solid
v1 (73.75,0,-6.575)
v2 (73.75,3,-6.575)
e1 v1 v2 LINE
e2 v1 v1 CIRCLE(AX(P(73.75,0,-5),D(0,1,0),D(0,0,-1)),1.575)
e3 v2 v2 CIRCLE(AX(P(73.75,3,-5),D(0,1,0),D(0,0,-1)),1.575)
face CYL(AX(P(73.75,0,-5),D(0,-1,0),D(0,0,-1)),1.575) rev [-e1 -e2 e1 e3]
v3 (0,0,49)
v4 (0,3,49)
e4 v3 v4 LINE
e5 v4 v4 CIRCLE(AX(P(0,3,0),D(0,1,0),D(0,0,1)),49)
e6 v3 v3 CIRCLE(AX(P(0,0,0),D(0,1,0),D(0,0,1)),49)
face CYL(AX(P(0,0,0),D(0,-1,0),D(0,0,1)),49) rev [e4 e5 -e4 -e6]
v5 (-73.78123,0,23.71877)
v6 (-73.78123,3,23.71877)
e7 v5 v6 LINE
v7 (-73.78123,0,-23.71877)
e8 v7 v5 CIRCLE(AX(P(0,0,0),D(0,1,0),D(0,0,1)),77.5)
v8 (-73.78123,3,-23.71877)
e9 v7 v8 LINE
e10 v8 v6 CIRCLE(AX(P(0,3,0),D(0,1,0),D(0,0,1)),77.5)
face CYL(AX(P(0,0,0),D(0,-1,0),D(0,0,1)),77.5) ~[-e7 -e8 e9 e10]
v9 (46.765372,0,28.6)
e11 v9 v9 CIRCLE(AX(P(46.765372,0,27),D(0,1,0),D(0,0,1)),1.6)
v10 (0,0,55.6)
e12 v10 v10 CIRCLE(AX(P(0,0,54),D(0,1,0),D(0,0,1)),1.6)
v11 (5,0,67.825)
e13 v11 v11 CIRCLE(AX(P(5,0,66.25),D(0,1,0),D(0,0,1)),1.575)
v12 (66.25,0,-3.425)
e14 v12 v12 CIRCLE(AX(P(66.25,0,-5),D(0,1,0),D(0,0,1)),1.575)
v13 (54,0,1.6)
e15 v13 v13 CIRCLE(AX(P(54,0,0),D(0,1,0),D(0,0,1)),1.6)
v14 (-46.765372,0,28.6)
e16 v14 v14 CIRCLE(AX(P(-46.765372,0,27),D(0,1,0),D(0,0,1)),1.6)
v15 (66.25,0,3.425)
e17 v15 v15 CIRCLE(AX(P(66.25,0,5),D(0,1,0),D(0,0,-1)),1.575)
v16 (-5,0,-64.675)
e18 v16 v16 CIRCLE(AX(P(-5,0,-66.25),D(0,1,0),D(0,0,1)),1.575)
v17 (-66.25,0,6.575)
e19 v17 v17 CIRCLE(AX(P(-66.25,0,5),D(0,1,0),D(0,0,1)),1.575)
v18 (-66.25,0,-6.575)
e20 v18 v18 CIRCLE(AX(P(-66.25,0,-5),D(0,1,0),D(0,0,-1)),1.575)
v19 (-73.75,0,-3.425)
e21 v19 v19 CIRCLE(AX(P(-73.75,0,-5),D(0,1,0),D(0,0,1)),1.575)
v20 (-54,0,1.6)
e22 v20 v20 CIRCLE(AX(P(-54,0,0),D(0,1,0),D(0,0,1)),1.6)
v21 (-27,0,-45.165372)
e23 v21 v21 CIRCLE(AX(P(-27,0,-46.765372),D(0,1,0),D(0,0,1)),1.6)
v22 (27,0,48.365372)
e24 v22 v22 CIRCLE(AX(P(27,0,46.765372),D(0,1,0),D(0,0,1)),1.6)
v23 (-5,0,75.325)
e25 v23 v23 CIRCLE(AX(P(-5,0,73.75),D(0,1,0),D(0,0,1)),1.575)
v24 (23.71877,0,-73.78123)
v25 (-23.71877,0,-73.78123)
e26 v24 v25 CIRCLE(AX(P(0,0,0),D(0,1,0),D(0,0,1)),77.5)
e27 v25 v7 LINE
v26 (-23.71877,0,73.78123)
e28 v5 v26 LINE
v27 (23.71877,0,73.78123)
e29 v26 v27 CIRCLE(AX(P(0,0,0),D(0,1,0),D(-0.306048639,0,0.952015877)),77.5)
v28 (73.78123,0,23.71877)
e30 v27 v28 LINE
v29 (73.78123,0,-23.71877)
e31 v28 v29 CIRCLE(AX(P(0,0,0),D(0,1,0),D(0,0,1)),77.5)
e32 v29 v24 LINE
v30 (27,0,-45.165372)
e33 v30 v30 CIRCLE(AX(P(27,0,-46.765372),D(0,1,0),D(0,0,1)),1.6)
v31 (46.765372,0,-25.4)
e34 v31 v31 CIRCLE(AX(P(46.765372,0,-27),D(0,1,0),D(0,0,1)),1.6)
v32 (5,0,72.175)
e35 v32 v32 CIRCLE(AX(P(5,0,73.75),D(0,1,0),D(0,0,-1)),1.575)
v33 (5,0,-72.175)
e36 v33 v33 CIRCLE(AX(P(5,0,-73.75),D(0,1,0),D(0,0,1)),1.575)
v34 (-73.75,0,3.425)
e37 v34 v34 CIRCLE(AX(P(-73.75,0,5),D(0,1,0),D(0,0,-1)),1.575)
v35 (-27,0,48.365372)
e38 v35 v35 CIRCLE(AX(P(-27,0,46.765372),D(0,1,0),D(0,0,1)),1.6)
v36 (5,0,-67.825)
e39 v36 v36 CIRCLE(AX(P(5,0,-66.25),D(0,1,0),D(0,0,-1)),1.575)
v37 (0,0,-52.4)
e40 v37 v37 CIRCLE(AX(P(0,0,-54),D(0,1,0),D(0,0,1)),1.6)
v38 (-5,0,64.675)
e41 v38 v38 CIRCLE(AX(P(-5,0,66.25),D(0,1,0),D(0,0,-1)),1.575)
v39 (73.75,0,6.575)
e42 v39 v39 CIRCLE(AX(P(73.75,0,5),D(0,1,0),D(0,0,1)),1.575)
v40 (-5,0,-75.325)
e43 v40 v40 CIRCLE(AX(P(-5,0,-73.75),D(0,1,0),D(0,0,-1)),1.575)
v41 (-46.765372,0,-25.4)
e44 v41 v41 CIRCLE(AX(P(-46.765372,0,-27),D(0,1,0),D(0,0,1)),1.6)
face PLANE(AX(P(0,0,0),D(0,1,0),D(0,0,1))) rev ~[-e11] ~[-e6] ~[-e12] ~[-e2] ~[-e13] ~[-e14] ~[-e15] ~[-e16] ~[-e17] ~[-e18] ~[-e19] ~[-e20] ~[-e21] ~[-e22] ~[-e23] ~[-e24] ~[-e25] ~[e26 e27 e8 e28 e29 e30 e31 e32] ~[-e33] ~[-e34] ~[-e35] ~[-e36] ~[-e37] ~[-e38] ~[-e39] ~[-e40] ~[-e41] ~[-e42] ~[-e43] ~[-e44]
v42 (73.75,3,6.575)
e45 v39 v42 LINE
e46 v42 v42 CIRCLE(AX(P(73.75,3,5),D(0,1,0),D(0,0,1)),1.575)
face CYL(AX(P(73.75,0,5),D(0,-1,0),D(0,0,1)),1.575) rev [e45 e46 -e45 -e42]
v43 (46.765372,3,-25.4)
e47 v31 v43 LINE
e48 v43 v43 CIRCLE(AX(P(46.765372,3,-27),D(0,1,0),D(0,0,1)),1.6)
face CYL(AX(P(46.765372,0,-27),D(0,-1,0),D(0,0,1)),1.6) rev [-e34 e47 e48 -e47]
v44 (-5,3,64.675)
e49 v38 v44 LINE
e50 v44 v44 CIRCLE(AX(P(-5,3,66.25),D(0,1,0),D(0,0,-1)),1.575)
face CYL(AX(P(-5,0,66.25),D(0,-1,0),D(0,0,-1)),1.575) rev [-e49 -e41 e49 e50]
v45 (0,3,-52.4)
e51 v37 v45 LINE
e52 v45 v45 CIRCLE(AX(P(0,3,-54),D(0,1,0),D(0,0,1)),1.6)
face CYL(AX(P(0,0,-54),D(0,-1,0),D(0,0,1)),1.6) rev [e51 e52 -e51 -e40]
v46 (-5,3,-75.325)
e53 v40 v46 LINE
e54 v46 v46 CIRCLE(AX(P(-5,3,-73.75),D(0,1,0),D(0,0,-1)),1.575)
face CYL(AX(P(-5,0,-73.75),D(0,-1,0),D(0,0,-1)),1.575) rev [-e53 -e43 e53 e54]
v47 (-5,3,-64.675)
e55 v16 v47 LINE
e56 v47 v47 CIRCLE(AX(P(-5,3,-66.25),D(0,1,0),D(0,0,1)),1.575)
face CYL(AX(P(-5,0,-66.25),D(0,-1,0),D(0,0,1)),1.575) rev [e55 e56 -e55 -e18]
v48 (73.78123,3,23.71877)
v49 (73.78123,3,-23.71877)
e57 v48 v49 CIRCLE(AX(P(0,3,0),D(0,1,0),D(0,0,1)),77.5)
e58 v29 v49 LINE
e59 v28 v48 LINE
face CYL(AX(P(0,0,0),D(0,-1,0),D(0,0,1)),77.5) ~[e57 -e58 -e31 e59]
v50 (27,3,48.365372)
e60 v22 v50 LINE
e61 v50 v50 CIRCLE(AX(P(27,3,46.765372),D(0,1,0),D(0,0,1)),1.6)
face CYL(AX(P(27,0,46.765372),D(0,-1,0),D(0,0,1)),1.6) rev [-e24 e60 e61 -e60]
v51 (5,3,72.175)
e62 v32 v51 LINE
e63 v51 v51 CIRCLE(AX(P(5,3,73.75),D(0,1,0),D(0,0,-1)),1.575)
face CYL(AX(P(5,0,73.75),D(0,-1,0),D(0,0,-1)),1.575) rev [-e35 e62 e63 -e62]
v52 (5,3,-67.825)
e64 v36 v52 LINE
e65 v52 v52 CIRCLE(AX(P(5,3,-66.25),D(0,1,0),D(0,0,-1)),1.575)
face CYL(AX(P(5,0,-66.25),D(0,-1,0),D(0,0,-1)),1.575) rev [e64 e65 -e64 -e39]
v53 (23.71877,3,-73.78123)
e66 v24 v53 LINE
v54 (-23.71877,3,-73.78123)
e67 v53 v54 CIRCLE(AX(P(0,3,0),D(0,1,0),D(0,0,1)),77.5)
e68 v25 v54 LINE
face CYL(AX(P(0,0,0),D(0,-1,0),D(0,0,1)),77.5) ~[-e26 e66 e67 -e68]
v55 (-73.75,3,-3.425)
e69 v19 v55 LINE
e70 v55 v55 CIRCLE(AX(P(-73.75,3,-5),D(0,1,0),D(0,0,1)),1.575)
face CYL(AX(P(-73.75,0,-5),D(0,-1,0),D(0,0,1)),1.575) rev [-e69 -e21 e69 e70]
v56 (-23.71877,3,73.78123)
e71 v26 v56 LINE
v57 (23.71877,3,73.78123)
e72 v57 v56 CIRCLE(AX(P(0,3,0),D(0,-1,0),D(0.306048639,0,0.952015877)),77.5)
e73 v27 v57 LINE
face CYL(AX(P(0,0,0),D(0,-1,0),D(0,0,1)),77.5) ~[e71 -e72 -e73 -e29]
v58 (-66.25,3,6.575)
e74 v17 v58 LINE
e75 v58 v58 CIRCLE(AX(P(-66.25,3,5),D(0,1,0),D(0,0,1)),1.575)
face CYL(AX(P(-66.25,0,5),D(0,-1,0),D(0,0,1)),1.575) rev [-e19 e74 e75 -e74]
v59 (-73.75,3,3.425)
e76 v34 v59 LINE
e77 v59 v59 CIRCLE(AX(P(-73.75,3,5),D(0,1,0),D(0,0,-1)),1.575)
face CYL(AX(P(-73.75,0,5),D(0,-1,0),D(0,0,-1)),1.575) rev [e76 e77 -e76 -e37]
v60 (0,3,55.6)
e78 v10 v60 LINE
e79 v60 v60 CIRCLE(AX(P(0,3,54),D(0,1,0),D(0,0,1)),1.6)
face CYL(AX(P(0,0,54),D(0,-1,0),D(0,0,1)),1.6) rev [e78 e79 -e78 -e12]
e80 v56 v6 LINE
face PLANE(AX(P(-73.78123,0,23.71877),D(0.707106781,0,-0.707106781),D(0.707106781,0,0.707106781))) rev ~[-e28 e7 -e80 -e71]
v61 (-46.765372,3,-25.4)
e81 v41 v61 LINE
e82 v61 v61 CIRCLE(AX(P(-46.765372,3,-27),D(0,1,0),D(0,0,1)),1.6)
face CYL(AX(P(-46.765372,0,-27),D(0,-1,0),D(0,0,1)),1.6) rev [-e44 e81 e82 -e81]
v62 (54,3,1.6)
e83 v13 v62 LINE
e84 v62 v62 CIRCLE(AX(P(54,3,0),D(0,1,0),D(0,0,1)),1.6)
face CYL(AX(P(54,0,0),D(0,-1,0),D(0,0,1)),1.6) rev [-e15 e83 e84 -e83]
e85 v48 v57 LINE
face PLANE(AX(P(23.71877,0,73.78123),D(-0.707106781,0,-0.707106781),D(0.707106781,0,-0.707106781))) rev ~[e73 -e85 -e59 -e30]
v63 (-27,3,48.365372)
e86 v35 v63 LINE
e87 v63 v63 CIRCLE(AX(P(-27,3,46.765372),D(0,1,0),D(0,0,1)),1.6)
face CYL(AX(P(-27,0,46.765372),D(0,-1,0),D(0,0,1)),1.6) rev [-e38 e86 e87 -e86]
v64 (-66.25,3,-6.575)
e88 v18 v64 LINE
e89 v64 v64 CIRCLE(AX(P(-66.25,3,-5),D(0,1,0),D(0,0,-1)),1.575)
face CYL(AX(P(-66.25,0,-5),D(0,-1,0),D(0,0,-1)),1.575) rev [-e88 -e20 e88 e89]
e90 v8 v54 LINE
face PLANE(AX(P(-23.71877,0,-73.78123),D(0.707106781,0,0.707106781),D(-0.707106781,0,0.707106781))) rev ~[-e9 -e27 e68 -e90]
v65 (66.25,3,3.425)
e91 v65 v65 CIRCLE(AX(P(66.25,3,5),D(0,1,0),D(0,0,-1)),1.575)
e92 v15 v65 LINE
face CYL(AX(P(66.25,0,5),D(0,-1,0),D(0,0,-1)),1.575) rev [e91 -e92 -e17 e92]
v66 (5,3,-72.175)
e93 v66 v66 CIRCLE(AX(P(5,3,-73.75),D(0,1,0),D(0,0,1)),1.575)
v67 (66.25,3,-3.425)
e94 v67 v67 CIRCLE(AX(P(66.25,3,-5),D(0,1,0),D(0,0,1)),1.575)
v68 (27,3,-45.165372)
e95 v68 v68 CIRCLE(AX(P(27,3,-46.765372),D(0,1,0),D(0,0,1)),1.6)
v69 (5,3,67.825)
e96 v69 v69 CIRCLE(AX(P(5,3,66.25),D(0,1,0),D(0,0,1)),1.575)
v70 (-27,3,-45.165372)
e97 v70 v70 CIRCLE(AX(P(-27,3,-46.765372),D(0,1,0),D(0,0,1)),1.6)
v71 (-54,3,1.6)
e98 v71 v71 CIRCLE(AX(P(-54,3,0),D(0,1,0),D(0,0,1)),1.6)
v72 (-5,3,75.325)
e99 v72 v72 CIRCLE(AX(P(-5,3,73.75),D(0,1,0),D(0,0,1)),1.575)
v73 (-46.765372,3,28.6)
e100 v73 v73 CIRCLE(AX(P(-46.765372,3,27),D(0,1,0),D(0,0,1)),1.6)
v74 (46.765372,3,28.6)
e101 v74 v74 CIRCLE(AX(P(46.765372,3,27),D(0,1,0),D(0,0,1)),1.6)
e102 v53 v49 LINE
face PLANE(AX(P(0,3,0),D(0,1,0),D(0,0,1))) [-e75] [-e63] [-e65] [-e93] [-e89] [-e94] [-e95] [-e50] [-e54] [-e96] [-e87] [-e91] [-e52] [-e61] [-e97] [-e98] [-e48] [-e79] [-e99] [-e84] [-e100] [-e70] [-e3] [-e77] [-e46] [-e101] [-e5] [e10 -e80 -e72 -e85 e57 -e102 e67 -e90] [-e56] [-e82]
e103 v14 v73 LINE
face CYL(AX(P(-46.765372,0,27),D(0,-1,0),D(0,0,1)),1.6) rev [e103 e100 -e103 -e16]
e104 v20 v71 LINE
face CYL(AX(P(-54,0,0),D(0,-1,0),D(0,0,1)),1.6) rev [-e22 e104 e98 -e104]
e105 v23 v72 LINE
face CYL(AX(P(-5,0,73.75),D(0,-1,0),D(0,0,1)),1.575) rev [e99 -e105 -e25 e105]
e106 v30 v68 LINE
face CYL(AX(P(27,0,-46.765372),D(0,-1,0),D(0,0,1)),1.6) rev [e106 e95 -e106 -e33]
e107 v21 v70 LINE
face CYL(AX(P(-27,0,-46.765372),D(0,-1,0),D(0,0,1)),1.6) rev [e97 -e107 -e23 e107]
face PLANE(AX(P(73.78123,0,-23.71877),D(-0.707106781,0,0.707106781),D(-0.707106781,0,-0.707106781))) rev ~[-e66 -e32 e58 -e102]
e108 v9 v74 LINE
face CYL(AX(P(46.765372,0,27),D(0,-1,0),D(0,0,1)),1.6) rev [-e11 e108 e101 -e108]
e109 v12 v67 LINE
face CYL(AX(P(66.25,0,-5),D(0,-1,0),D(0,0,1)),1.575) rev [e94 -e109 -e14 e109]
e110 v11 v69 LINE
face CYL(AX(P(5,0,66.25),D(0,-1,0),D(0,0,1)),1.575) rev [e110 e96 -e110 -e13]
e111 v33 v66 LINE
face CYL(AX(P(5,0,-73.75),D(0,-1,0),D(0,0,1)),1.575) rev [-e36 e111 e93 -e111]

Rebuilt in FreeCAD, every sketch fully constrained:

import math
import FreeCAD as App
import Part
import Sketcher
from FreeCAD import Vector

doc = App.newDocument("Part")
params = doc.addObject("Spreadsheet::Sheet", "Params")
for row, (alias, value) in enumerate([
    ("sketch1_diameter", "155 mm"),
    ("sketch1_diameter2", "98 mm"),
    ("sketch1_diameter3", "3.2 mm"),
    ("sketch1_diameter4", "3.15 mm"),
    ("pad1_length", "3 mm"),
    ("sketch2_radius", "77.5 mm"),
    ("pocket1_length", "10 mm"),
], start=1):
    params.set(f"A{row}", alias)
    params.set(f"B{row}", "=" + value)
    params.setAlias(f"B{row}", alias)

body = doc.addObject("PartDesign::Body", "Body")

# Sketch on XZ plane
sketch1 = body.newObject("Sketcher::SketchObject", "Sketch")
sketch1.AttachmentSupport = (doc.getObject("XZ_Plane"), [""])
sketch1.MapMode = "FlatFace"
sketch1.addGeometry([
    Part.Circle(Vector(0, 0, 0), Vector(0, 0, 1), 77.5),  # 0
    Part.Circle(Vector(-73.8, -5, 0), Vector(0, 0, 1), 1.6),  # 1
    Part.Circle(Vector(-66.2, -5, 0), Vector(0, 0, 1), 1.6),  # 2
    Part.Circle(Vector(-46.8, -27, 0), Vector(0, 0, 1), 1.6),  # 3
    Part.Circle(Vector(-27, -46.8, 0), Vector(0, 0, 1), 1.6),  # 4
    Part.Circle(Vector(-5, -73.8, 0), Vector(0, 0, 1), 1.6),  # 5
    Part.Circle(Vector(-5, -66.2, 0), Vector(0, 0, 1), 1.6),  # 6
    Part.Circle(Vector(0, -54, 0), Vector(0, 0, 1), 1.6),  # 7
    Part.Circle(Vector(-73.8, 5, 0), Vector(0, 0, 1), 1.6),  # 8
    Part.Circle(Vector(-66.2, 5, 0), Vector(0, 0, 1), 1.6),  # 9
    Part.Circle(Vector(-54, 0, 0), Vector(0, 0, 1), 1.6),  # 10
    Part.Circle(Vector(-46.8, 27, 0), Vector(0, 0, 1), 1.6),  # 11
    Part.Circle(Vector(-27, 46.8, 0), Vector(0, 0, 1), 1.6),  # 12
    Part.Circle(Vector(-5, 66.2, 0), Vector(0, 0, 1), 1.6),  # 13
    Part.Circle(Vector(-5, 73.8, 0), Vector(0, 0, 1), 1.6),  # 14
    Part.Circle(Vector(5, -73.8, 0), Vector(0, 0, 1), 1.6),  # 15
    Part.Circle(Vector(5, -66.2, 0), Vector(0, 0, 1), 1.6),  # 16
    Part.Circle(Vector(27, -46.8, 0), Vector(0, 0, 1), 1.6),  # 17
    Part.Circle(Vector(46.8, -27, 0), Vector(0, 0, 1), 1.6),  # 18
    Part.Circle(Vector(54, 0, 0), Vector(0, 0, 1), 1.6),  # 19
    Part.Circle(Vector(66.2, -5, 0), Vector(0, 0, 1), 1.6),  # 20
    Part.Circle(Vector(73.8, -5, 0), Vector(0, 0, 1), 1.6),  # 21
    Part.Circle(Vector(0, 0, 0), Vector(0, 0, 1), 49),  # 22
    Part.Circle(Vector(0, 54, 0), Vector(0, 0, 1), 1.6),  # 23
    Part.Circle(Vector(5, 66.2, 0), Vector(0, 0, 1), 1.6),  # 24
    Part.Circle(Vector(5, 73.8, 0), Vector(0, 0, 1), 1.6),  # 25
    Part.Circle(Vector(27, 46.8, 0), Vector(0, 0, 1), 1.6),  # 26
    Part.Circle(Vector(46.8, 27, 0), Vector(0, 0, 1), 1.6),  # 27
    Part.Circle(Vector(66.2, 5, 0), Vector(0, 0, 1), 1.6),  # 28
    Part.Circle(Vector(73.8, 5, 0), Vector(0, 0, 1), 1.6),  # 29
], False)
sketch1.addConstraint([
    Sketcher.Constraint("Coincident", 0, 3, -1, 1),
    Sketcher.Constraint("Coincident", 22, 3, -1, 1),
    Sketcher.Constraint("Equal", 1, 2),
    Sketcher.Constraint("Equal", 3, 4),
    Sketcher.Constraint("Equal", 2, 5),
    Sketcher.Constraint("Equal", 5, 6),
    Sketcher.Constraint("Equal", 4, 7),
    Sketcher.Constraint("Equal", 6, 8),
    Sketcher.Constraint("Equal", 8, 9),
    Sketcher.Constraint("Equal", 7, 10),
    Sketcher.Constraint("Equal", 10, 11),
    Sketcher.Constraint("Equal", 11, 12),
    Sketcher.Constraint("Equal", 9, 13),
    Sketcher.Constraint("Equal", 13, 14),
    Sketcher.Constraint("Equal", 14, 15),
    Sketcher.Constraint("Equal", 15, 16),
    Sketcher.Constraint("Equal", 12, 17),
    Sketcher.Constraint("Equal", 17, 18),
    Sketcher.Constraint("Equal", 18, 19),
    Sketcher.Constraint("Equal", 16, 20),
    Sketcher.Constraint("Equal", 20, 21),
    Sketcher.Constraint("Equal", 19, 23),
    Sketcher.Constraint("Equal", 21, 24),
    Sketcher.Constraint("Equal", 24, 25),
    Sketcher.Constraint("Equal", 23, 26),
    Sketcher.Constraint("Equal", 26, 27),
    Sketcher.Constraint("Equal", 25, 28),
    Sketcher.Constraint("Equal", 28, 29),
    Sketcher.Constraint("Symmetric", 14, 3, 15, 3, -1, 1),
    Sketcher.Constraint("Symmetric", 13, 3, 16, 3, -1, 1),
    Sketcher.Constraint("Symmetric", 12, 3, 17, 3, -1, 1),
    Sketcher.Constraint("Symmetric", 11, 3, 18, 3, -1, 1),
    Sketcher.Constraint("Symmetric", 10, 3, 19, 3, -1, 1),
    Sketcher.Constraint("Symmetric", 9, 3, 20, 3, -1, 1),
    Sketcher.Constraint("Symmetric", 8, 3, 21, 3, -1, 1),
    Sketcher.Constraint("Symmetric", 7, 3, 23, 3, -1, 1),
    Sketcher.Constraint("Symmetric", 6, 3, 24, 3, -1, 1),
    Sketcher.Constraint("Symmetric", 5, 3, 25, 3, -1, 1),
    Sketcher.Constraint("Symmetric", 4, 3, 26, 3, -1, 1),
    Sketcher.Constraint("Symmetric", 3, 3, 27, 3, -1, 1),
    Sketcher.Constraint("Symmetric", 2, 3, 28, 3, -1, 1),
    Sketcher.Constraint("Symmetric", 1, 3, 29, 3, -1, 1),
    Sketcher.Constraint("Symmetric", 5, 3, 15, 3, -2),
    Sketcher.Constraint("Symmetric", 6, 3, 16, 3, -2),
    Sketcher.Constraint("Symmetric", 4, 3, 17, 3, -2),
    Sketcher.Constraint("Symmetric", 3, 3, 18, 3, -2),
    Sketcher.Constraint("Symmetric", 2, 3, 20, 3, -2),
    Sketcher.Constraint("Symmetric", 1, 3, 21, 3, -2),
    Sketcher.Constraint("PointOnObject", 7, 3, -2),
    Sketcher.Constraint("PointOnObject", 10, 3, -1),
    Sketcher.Constraint("Horizontal", 1, 3, 2, 3),
    Sketcher.Constraint("Vertical", 5, 3, 6, 3),
    Sketcher.Constraint("Diameter", 0, 155.0),
    Sketcher.Constraint("Diameter", 22, 98.0),
    Sketcher.Constraint("Diameter", 3, 3.2),
    Sketcher.Constraint("Diameter", 1, 3.15),
    Sketcher.Constraint("DistanceY", 1, 3, -1, 1, 5.0),
    Sketcher.Constraint("DistanceY", 3, 3, -1, 1, 27.0),
    Sketcher.Constraint("DistanceX", 4, 3, -1, 1, 27.0),
    Sketcher.Constraint("DistanceX", 5, 3, -1, 1, 5.0),
    Sketcher.Constraint("DistanceY", 7, 3, -1, 1, 54.0),
    Sketcher.Constraint("DistanceX", 10, 3, -1, 1, 54.0),
    Sketcher.Constraint("DistanceX", 1, 3, 2, 3, 7.5),
    Sketcher.Constraint("DistanceY", 5, 3, 6, 3, 7.5),
    Sketcher.Constraint("DistanceX", 1, 3, -1, 1, 73.75),
    Sketcher.Constraint("DistanceY", 5, 3, -1, 1, 73.75),
    Sketcher.Constraint("DistanceX", 3, 3, -1, 1, 46.765372),
    Sketcher.Constraint("DistanceY", 4, 3, -1, 1, 46.765372),
])
sketch1.setExpression("Constraints[52]", "Params.sketch1_diameter")
sketch1.setExpression("Constraints[53]", "Params.sketch1_diameter2")
sketch1.setExpression("Constraints[54]", "Params.sketch1_diameter3")
sketch1.setExpression("Constraints[55]", "Params.sketch1_diameter4")
pad1 = body.newObject("PartDesign::Pad", "Pad")
pad1.Profile = sketch1
pad1.setExpression("Length", "Params.pad1_length")
pad1.Reversed = True

# Sketch on XZ plane
sketch2 = body.newObject("Sketcher::SketchObject", "Sketch001")
sketch2.AttachmentSupport = (doc.getObject("XZ_Plane"), [""])
sketch2.MapMode = "FlatFace"
sketch2.addGeometry([
    Part.ArcOfCircle(Part.Circle(Vector(0, 0, 0), Vector(0, 0, 1), 77), math.radians(18), math.radians(72)),  # 0
    Part.LineSegment(Vector(24, 74, 0), Vector(74, 24, 0)),  # 1
    Part.LineSegment(Vector(74, -24, 0), Vector(24, -74, 0)),  # 2
    Part.ArcOfCircle(Part.Circle(Vector(0, 0, 0), Vector(0, 0, 1), 77), math.radians(-72), math.radians(-18)),  # 3
    Part.LineSegment(Vector(-74, 24, 0), Vector(-24, 74, 0)),  # 4
    Part.ArcOfCircle(Part.Circle(Vector(0, 0, 0), Vector(0, 0, 1), 77), math.radians(108), math.radians(162)),  # 5
    Part.LineSegment(Vector(-24, -74, 0), Vector(-74, -24, 0)),  # 6
    Part.ArcOfCircle(Part.Circle(Vector(0, 0, 0), Vector(0, 0, 1), 77), math.radians(-162), math.radians(-108)),  # 7
], False)
sketch2.addConstraint([
    Sketcher.Constraint("Coincident", 0, 1, 1, 2),
    Sketcher.Constraint("Coincident", 1, 1, 0, 2),
    Sketcher.Constraint("Coincident", 2, 1, 3, 2),
    Sketcher.Constraint("Coincident", 3, 1, 2, 2),
    Sketcher.Constraint("Coincident", 4, 1, 5, 2),
    Sketcher.Constraint("Coincident", 5, 1, 4, 2),
    Sketcher.Constraint("Coincident", 6, 1, 7, 2),
    Sketcher.Constraint("Coincident", 7, 1, 6, 2),
    Sketcher.Constraint("Coincident", 0, 3, -1, 1),
    Sketcher.Constraint("Coincident", 3, 3, -1, 1),
    Sketcher.Constraint("Coincident", 5, 3, -1, 1),
    Sketcher.Constraint("Coincident", 7, 3, -1, 1),
    Sketcher.Constraint("Equal", 0, 3),
    Sketcher.Constraint("Equal", 3, 5),
    Sketcher.Constraint("Equal", 5, 7),
    Sketcher.Constraint("Perpendicular", 1, 2),
    Sketcher.Constraint("Parallel", 2, 4),
    Sketcher.Constraint("Perpendicular", 4, 6),
    Sketcher.Constraint("Horizontal", 0, 1, 4, 1),
    Sketcher.Constraint("Horizontal", 1, 1, 5, 1),
    Sketcher.Constraint("Horizontal", 3, 1, 6, 1),
    Sketcher.Constraint("Vertical", 0, 1, 2, 1),
    Sketcher.Constraint("Radius", 0, 77.5),
    Sketcher.Constraint("DistanceX", 4, 1, 1, 1, 97.5),
])
sketch2.setExpression("Constraints[22]", "Params.sketch2_radius")
pocket1 = body.newObject("PartDesign::Pocket", "Pocket")
pocket1.Profile = sketch2
pocket1.setExpression("Length", "Params.pocket1_length")

doc.recompute()
